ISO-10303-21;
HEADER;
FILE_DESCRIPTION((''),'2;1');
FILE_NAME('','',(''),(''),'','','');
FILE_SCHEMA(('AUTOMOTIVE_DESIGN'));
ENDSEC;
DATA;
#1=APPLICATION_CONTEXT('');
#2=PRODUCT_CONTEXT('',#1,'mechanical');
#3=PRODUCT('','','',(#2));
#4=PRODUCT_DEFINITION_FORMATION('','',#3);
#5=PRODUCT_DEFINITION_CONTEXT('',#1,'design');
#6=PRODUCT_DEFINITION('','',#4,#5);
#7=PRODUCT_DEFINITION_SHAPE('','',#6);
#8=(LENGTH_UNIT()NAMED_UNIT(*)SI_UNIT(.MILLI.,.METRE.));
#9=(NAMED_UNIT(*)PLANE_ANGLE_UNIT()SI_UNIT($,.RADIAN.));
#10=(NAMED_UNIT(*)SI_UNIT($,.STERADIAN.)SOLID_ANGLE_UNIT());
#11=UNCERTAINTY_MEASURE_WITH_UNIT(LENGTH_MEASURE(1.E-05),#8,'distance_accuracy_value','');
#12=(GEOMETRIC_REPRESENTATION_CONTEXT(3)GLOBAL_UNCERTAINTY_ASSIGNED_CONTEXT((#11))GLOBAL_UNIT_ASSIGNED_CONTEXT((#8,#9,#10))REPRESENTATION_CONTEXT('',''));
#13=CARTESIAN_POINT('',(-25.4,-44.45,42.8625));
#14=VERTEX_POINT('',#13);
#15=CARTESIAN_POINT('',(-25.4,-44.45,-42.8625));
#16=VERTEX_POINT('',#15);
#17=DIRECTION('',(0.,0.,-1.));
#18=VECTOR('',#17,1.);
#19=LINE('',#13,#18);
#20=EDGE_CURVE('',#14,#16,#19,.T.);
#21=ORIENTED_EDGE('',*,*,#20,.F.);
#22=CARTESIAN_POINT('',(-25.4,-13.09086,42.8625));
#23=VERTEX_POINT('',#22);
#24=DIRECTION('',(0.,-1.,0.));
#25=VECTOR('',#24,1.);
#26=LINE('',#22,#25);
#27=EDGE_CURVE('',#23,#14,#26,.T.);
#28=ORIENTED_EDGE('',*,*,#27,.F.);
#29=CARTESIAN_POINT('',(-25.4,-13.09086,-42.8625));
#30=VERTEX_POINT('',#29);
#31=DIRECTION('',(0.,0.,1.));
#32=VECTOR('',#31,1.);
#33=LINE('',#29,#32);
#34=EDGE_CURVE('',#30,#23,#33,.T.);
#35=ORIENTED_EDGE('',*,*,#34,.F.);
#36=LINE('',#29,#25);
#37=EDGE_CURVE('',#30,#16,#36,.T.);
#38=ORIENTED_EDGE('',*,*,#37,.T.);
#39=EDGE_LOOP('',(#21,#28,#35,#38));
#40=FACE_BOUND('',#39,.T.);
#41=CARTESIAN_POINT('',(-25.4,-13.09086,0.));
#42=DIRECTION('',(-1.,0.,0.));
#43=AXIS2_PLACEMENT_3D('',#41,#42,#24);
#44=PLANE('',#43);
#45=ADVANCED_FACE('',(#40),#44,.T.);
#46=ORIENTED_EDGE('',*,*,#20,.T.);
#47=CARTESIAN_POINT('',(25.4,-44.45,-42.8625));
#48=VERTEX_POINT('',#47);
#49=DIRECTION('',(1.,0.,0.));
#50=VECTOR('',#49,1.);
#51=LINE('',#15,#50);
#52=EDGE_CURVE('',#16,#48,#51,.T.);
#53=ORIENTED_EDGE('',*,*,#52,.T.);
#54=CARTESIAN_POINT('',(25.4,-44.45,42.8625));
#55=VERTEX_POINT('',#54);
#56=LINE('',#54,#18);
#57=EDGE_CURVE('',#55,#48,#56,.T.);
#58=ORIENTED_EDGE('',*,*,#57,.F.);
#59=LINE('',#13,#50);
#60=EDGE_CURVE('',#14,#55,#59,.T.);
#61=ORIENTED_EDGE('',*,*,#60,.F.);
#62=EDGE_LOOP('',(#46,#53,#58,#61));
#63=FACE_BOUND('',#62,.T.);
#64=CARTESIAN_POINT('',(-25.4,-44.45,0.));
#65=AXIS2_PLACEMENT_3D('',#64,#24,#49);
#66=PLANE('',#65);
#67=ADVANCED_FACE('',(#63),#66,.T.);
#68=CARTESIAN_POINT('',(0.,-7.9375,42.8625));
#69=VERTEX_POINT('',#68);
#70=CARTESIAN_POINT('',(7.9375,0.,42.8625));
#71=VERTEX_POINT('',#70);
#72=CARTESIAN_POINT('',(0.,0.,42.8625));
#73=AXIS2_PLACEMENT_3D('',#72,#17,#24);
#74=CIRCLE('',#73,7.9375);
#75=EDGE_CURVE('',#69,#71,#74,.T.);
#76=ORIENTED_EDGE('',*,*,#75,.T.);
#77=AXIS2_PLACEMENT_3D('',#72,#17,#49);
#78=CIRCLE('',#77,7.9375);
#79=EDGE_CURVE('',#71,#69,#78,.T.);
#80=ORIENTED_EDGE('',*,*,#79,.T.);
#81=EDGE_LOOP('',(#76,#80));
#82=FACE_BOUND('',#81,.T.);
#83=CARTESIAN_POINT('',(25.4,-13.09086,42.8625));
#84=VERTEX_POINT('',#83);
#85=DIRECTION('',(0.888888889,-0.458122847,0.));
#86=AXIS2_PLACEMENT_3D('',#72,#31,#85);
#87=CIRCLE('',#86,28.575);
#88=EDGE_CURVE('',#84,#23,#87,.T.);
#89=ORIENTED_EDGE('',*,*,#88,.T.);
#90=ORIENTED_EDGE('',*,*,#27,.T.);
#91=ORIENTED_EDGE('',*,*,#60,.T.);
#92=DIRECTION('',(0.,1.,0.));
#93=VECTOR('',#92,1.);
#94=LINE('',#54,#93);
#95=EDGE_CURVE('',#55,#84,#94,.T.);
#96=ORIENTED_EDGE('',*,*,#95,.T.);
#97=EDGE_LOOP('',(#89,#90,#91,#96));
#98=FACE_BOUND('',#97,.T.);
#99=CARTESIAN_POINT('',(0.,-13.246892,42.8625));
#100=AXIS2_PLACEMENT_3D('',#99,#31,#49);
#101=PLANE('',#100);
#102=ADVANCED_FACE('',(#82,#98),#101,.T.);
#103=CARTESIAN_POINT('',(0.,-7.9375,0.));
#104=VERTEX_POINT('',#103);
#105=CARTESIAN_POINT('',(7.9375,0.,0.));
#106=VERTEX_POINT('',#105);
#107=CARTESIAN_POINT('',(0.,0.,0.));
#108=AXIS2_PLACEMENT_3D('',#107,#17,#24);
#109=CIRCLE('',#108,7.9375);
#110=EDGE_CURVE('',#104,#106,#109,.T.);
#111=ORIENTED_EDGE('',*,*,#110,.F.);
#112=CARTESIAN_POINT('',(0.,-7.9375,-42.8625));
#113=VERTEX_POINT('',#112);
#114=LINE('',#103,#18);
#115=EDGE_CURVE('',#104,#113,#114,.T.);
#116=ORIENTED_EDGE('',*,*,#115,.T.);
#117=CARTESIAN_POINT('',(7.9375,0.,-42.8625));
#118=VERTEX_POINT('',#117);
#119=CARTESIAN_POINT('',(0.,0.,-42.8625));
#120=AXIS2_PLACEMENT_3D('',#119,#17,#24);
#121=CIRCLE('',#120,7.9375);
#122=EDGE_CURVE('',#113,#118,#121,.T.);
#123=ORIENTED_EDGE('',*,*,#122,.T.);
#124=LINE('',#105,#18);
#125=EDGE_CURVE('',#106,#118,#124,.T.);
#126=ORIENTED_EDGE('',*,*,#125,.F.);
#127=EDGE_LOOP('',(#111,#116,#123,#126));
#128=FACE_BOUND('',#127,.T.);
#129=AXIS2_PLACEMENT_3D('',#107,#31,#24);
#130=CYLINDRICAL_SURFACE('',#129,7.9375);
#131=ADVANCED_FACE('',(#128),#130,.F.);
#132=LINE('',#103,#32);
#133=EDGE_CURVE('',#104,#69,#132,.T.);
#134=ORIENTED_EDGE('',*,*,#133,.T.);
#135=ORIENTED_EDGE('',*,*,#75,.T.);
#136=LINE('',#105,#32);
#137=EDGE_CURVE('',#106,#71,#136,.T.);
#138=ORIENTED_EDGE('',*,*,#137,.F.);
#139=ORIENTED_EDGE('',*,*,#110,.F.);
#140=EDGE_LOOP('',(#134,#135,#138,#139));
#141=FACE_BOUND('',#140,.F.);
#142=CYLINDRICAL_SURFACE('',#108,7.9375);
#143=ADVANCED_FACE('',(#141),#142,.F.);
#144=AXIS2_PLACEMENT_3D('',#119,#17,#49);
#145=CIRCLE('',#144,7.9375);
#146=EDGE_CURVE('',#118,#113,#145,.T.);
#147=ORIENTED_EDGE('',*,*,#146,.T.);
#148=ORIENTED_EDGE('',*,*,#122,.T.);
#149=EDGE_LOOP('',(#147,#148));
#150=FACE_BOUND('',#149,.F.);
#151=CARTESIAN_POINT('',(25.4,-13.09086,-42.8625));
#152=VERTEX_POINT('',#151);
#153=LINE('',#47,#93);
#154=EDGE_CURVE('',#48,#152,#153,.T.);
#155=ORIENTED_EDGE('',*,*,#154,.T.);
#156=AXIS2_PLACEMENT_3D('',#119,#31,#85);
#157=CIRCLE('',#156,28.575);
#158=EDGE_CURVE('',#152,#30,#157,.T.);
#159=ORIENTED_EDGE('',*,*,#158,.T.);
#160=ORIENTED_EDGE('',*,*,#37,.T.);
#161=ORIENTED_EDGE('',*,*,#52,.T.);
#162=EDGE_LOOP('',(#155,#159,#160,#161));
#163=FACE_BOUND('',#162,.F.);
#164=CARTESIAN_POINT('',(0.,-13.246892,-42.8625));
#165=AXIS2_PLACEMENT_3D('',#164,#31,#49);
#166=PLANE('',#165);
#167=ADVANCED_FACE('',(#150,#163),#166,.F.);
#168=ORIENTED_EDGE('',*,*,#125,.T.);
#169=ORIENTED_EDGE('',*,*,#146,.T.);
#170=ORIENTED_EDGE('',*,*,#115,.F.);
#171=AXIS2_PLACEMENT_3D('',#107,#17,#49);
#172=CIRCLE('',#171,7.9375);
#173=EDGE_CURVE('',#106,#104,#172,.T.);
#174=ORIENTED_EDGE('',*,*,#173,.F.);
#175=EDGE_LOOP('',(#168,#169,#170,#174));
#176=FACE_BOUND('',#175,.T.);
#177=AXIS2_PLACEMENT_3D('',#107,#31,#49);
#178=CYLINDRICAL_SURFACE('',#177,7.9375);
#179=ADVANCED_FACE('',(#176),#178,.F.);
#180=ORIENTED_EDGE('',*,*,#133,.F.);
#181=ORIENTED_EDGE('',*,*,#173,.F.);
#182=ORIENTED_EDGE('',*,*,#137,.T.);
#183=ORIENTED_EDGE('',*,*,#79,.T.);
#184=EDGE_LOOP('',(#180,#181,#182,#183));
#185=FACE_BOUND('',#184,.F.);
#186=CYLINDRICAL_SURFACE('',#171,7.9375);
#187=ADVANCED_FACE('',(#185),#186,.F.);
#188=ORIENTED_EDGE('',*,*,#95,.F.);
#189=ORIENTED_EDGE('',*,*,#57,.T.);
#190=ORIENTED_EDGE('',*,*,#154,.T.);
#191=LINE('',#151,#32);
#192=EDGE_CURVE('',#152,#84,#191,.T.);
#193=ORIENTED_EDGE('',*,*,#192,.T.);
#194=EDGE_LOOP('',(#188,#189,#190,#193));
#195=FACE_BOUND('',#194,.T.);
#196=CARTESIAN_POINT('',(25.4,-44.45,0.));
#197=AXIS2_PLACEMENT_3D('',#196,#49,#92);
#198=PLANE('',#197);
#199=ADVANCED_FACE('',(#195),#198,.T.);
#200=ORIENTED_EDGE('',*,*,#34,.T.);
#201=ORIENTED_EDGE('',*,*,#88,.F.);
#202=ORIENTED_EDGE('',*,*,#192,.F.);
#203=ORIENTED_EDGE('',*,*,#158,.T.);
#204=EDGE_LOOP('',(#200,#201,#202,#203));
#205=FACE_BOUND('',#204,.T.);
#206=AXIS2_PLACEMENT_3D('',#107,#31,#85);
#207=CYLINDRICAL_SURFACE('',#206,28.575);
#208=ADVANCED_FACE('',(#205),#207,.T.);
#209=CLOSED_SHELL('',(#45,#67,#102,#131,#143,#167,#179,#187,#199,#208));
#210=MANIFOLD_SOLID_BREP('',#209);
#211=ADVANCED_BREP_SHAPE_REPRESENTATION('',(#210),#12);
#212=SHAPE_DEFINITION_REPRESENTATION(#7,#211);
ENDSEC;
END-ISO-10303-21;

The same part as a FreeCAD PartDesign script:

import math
import FreeCAD as App
import Part
import Sketcher

V = App.Vector
Q = App.Units.Quantity

doc = App.newDocument("Part")
body = doc.addObject("PartDesign::Body", "Body")

# Sketch on XY plane
sketch1 = doc.addObject("Sketcher::SketchObject", "Sketch")
body.addObject(sketch1)
sketch1.AttachmentSupport = (doc.XY_Plane, [""])
sketch1.MapMode = "FlatFace"
sketch1.addGeometry(Part.LineSegment(V(25, -44, 0), V(25, -13, 0)), False)
sketch1.addGeometry(Part.ArcOfCircle(Part.Circle(V(0, 0, 0), V(0, 0, 1), 29), math.radians(-27), math.radians(207)), False)
sketch1.addGeometry(Part.LineSegment(V(-25, -13, 0), V(-25, -44, 0)), False)
sketch1.addGeometry(Part.LineSegment(V(-25, -44, 0), V(25, -44, 0)), False)
sketch1.addGeometry(Part.ArcOfCircle(Part.Circle(V(0, 0, 0), V(0, 0, 1), 8), math.radians(-90), math.radians(0)), False)
sketch1.addGeometry(Part.ArcOfCircle(Part.Circle(V(0, 0, 0), V(0, 0, 1), 8), math.radians(0), math.radians(270)), False)
sketch1.addConstraint(Sketcher.Constraint("Coincident", 0, 2, 1, 1))
sketch1.addConstraint(Sketcher.Constraint("Coincident", 1, 2, 2, 1))
sketch1.addConstraint(Sketcher.Constraint("Coincident", 2, 2, 3, 1))
sketch1.addConstraint(Sketcher.Constraint("Coincident", 3, 2, 0, 1))
sketch1.addConstraint(Sketcher.Constraint("Tangent", 4, 1, 5, 2))
sketch1.addConstraint(Sketcher.Constraint("Coincident", 5, 1, 4, 2))
sketch1.addConstraint(Sketcher.Constraint("Vertical", 0))
sketch1.addConstraint(Sketcher.Constraint("Vertical", 2))
sketch1.addConstraint(Sketcher.Constraint("Horizontal", 3))
sketch1.addConstraint(Sketcher.Constraint("Coincident", 1, 3, -1, 1))
sketch1.addConstraint(Sketcher.Constraint("Coincident", 4, 3, -1, 1))
sketch1.addConstraint(Sketcher.Constraint("PointOnObject", 4, 1, -2))
sketch1.addConstraint(Sketcher.Constraint("PointOnObject", 5, 1, -1))
sketch1.addConstraint(Sketcher.Constraint("Horizontal", 0, 2, 1, 2))
sketch1.addConstraint(Sketcher.Constraint("DistanceX", 3, 1, 3, 2, Q("2 in")))
sketch1.addConstraint(Sketcher.Constraint("Radius", 1, Q("1.125 in")))
sketch1.addConstraint(Sketcher.Constraint("Radius", 4, Q("0.3125 in")))
sketch1.addConstraint(Sketcher.Constraint("DistanceY", 2, 2, -1, 1, Q("1.75 in")))
pad1 = doc.addObject("PartDesign::Pad", "Pad")
body.addObject(pad1)
pad1.Profile = sketch1
pad1.Length = Q("3.375 in")
pad1.Midplane = True

doc.recompute()
